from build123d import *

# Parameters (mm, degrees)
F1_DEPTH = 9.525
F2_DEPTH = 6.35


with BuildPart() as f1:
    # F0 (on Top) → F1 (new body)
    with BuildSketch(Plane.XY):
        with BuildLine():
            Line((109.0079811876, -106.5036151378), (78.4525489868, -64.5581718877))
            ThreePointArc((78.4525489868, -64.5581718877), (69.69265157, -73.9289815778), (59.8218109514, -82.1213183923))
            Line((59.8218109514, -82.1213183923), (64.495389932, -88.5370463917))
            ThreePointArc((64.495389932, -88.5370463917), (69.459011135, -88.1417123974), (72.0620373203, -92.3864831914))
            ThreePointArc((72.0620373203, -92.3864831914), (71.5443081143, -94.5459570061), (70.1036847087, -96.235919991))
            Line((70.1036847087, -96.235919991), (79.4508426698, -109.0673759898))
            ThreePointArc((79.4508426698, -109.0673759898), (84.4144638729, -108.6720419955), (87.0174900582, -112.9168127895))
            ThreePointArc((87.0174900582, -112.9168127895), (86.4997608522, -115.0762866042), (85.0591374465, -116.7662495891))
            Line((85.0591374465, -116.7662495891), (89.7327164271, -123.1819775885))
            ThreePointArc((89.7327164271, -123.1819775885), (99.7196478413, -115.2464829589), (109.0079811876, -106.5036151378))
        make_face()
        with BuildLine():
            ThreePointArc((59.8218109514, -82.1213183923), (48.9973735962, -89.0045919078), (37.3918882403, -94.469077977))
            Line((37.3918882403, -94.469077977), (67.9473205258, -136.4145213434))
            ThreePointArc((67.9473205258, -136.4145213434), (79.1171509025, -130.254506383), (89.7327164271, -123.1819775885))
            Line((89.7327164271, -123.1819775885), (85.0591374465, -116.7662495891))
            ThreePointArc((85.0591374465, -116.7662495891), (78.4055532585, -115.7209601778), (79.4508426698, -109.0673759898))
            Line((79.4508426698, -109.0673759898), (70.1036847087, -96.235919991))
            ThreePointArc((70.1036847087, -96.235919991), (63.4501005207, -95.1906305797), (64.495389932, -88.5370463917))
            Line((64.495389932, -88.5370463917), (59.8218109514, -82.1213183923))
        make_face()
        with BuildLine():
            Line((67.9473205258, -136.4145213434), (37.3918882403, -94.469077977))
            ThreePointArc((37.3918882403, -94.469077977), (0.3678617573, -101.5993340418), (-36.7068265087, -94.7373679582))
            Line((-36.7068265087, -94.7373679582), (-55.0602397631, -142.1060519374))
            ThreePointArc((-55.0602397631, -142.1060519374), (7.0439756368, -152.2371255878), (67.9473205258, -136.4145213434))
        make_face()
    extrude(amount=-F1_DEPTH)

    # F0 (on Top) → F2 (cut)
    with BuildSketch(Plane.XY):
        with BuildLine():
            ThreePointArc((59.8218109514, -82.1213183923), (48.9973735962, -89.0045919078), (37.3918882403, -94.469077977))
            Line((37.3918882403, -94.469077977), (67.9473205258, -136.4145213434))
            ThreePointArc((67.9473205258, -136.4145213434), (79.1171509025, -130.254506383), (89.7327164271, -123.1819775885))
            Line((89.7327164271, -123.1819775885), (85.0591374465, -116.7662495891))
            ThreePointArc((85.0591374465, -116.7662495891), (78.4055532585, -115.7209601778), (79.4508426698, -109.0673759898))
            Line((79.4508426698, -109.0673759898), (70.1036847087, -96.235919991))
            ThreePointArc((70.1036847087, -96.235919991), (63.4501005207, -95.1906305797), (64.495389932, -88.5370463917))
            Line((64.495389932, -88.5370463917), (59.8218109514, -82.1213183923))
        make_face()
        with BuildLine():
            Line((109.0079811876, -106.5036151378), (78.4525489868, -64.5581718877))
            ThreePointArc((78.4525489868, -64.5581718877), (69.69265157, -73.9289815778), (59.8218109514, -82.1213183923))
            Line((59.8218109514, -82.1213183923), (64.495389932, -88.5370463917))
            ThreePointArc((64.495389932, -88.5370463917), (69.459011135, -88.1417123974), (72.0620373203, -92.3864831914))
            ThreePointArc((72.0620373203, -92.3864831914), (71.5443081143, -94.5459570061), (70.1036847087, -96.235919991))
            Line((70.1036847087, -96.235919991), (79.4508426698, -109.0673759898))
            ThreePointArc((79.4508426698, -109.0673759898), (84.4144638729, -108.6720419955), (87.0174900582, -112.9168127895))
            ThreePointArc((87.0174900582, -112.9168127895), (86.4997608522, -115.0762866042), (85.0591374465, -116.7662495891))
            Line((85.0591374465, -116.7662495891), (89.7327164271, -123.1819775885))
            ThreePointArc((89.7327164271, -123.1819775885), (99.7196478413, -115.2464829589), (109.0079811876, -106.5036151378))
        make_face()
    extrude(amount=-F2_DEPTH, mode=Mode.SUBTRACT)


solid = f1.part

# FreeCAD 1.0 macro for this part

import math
import FreeCAD as App
import Part
import Sketcher
from FreeCAD import Vector
Q = App.Units.Quantity

doc = App.newDocument("Part")
body = doc.addObject("PartDesign::Body", "Body")

sketch1 = doc.addObject("Sketcher::SketchObject", "Sketch")
body.addObject(sketch1)
sketch1.AttachmentSupport = (doc.XY_Plane, [""])
sketch1.MapMode = "FlatFace"
sketch1.addGeometry([
    Part.LineSegment(Vector(109, -106.5, 0), Vector(78.5, -64.6, 0)),
    Part.ArcOfCircle(Part.Circle(Vector(0, 0, 0), Vector(0, 0, 1), 101.6), math.radians(-53.93), math.radians(-39.45)),
    Part.ArcOfCircle(Part.Circle(Vector(0, 0, 0), Vector(0, 0, 1), 101.6), math.radians(-68.41), math.radians(-53.93)),
    Part.ArcOfCircle(Part.Circle(Vector(0, 0, 0), Vector(0, 0, 1), 101.6), math.radians(-111), math.radians(-68)),
    Part.LineSegment(Vector(-36.7, -94.7, 0), Vector(-55.1, -142.1, 0)),
    Part.ArcOfCircle(Part.Circle(Vector(0, 0, 0), Vector(0, 0, 1), 152.4), math.radians(-111), math.radians(-64)),
    Part.ArcOfCircle(Part.Circle(Vector(0, 0, 0), Vector(0, 0, 1), 152.4), math.radians(-63.52), math.radians(-53.93)),
    Part.ArcOfCircle(Part.Circle(Vector(0, 0, 0), Vector(0, 0, 1), 152.4), math.radians(-53.93), math.radians(-44.33)),
    Part.ArcOfCircle(Part.Circle(Vector(67.3, -92.4, 0), Vector(0, 0, 1), 4.8), math.radians(0), math.radians(126)),
    Part.ArcOfCircle(Part.Circle(Vector(67.3, -92.4, 0), Vector(0, 0, 1), 4.8), math.radians(-54), math.radians(0)),
    Part.ArcOfCircle(Part.Circle(Vector(67.3, -92.4, 0), Vector(0, 0, 1), 4.8), math.radians(126), math.radians(306)),
    Part.ArcOfCircle(Part.Circle(Vector(82.3, -112.9, 0), Vector(0, 0, 1), 4.8), math.radians(-54), math.radians(126)),
    Part.ArcOfCircle(Part.Circle(Vector(82.3, -112.9, 0), Vector(0, 0, 1), 4.8), math.radians(126), math.radians(306)),
], False)
sketch1.addConstraint([
    Sketcher.Constraint("Coincident", 0, 2, 1, 2),
    Sketcher.Constraint("Tangent", 1, 1, 2, 2),
    Sketcher.Constraint("Tangent", 2, 1, 3, 2),
    Sketcher.Constraint("Coincident", 3, 1, 4, 1),
    Sketcher.Constraint("Coincident", 4, 2, 5, 1),
    Sketcher.Constraint("Tangent", 5, 2, 6, 1),
    Sketcher.Constraint("Tangent", 6, 2, 7, 1),
    Sketcher.Constraint("Coincident", 7, 2, 0, 1),
    Sketcher.Constraint("Tangent", 8, 1, 9, 2),
    Sketcher.Constraint("Tangent", 9, 1, 10, 2),
    Sketcher.Constraint("Tangent", 10, 1, 8, 2),
    Sketcher.Constraint("Tangent", 11, 1, 12, 2),
    Sketcher.Constraint("Coincident", 12, 1, 11, 2),
    Sketcher.Constraint("Coincident", 1, 3, -1, 1),
    Sketcher.Constraint("Coincident", 3, 3, -1, 1),
    Sketcher.Constraint("Coincident", 5, 3, -1, 1),
    Sketcher.Constraint("Coincident", 7, 3, -1, 1),
    Sketcher.Constraint("Equal", 10, 11),
    Sketcher.Constraint("Horizontal", 10, 3, 8, 1),
    Sketcher.Constraint("Radius", 1, Q("4 in")),
    Sketcher.Constraint("Radius", 5, Q("6 in")),
    Sketcher.Constraint("Radius", 8, Q("0.1875 in")),
    Sketcher.Constraint("DistanceX", 2, 1, 12, 3, Q("44.863102 mm")),
    Sketcher.Constraint("DistanceY", 9, 1, 1, 1, Q("14.114602 mm")),
    Sketcher.Constraint("DistanceY", 6, 2, 12, 1, Q("14.114602 mm")),
    Sketcher.Constraint("Distance", 0, Q("51.894649 mm")),
    Sketcher.Constraint("DistanceX", -1, 1, 11, 3, Q("82.25499 mm")),
    Sketcher.Constraint("DistanceX", -1, 1, 0, 2, Q("78.452549 mm")),
    Sketcher.Constraint("DistanceX", -1, 1, 1, 1, Q("59.821811 mm")),
    Sketcher.Constraint("DistanceX", 4, 2, -1, 1, Q("55.06024 mm")),
    Sketcher.Constraint("DistanceX", -1, 1, 5, 2, Q("67.947321 mm")),
    Sketcher.Constraint("DistanceX", -1, 1, 10, 1, Q("64.49539 mm")),
    Sketcher.Constraint("DistanceY", 11, 1, -1, 1, Q("116.76625 mm")),
    Sketcher.Constraint("DistanceY", 11, 3, 8, 3, Q("20.53033 mm")),
    Sketcher.Constraint("DistanceX", 8, 3, 0, 2, Q("11.153012 mm")),
    Sketcher.Constraint("DistanceY", 8, 3, 0, 2, Q("27.828311 mm")),
    Sketcher.Constraint("DistanceY", 3, 1, 2, 1, Q("0.26829 mm")),
    Sketcher.Constraint("DistanceX", 8, 3, 6, 2, Q("22.433179 mm")),
])
pad1 = doc.addObject("PartDesign::Pad", "Pad")
body.addObject(pad1)
pad1.Profile = sketch1
pad1.Length = Q("0.375 in")
pad1.Reversed = True

sketch2 = doc.addObject("Sketcher::SketchObject", "Sketch001")
body.addObject(sketch2)
sketch2.AttachmentSupport = (doc.XY_Plane, [""])
sketch2.MapMode = "FlatFace"
sketch2.addGeometry([
    Part.ArcOfCircle(Part.Circle(Vector(0, 0, 0), Vector(0, 0, 1), 101.6), math.radians(-68.41), math.radians(-53.93)),
    Part.LineSegment(Vector(37.4, -94.5, 0), Vector(67.9, -136.4, 0)),
    Part.ArcOfCircle(Part.Circle(Vector(0, 0, 0), Vector(0, 0, 1), 152.4), math.radians(-63.52), math.radians(-53.93)),
    Part.ArcOfCircle(Part.Circle(Vector(0, 0, 0), Vector(0, 0, 1), 152.4), math.radians(-53.93), math.radians(-44.33)),
    Part.LineSegment(Vector(109, -106.5, 0), Vector(78.5, -64.6, 0)),
    Part.ArcOfCircle(Part.Circle(Vector(0, 0, 0), Vector(0, 0, 1), 101.6), math.radians(-53.93), math.radians(-39.45)),
    Part.ArcOfCircle(Part.Circle(Vector(82.3, -112.9, 0), Vector(0, 0, 1), 4.8), math.radians(126), math.radians(306)),
    Part.ArcOfCircle(Part.Circle(Vector(82.3, -112.9, 0), Vector(0, 0, 1), 4.8), math.radians(-54), math.radians(126)),
    Part.ArcOfCircle(Part.Circle(Vector(67.3, -92.4, 0), Vector(0, 0, 1), 4.8), math.radians(126), math.radians(306)),
    Part.ArcOfCircle(Part.Circle(Vector(67.3, -92.4, 0), Vector(0, 0, 1), 4.8), math.radians(0), math.radians(126)),
    Part.ArcOfCircle(Part.Circle(Vector(67.3, -92.4, 0), Vector(0, 0, 1), 4.8), math.radians(-54), math.radians(0)),
], False)
sketch2.addConstraint([
    Sketcher.Constraint("Coincident", 0, 1, 1, 1),
    Sketcher.Constraint("Coincident", 1, 2, 2, 1),
    Sketcher.Constraint("Tangent", 2, 2, 3, 1),
    Sketcher.Constraint("Coincident", 3, 2, 4, 1),
    Sketcher.Constraint("Coincident", 4, 2, 5, 2),
    Sketcher.Constraint("Tangent", 5, 1, 0, 2),
    Sketcher.Constraint("Tangent", 6, 1, 7, 2),
    Sketcher.Constraint("Coincident", 7, 1, 6, 2),
    Sketcher.Constraint("Tangent", 8, 1, 9, 2),
    Sketcher.Constraint("Tangent", 9, 1, 10, 2),
    Sketcher.Constraint("Tangent", 10, 1, 8, 2),
    Sketcher.Constraint("Coincident", 0, 3, -1, 1),
    Sketcher.Constraint("Coincident", 2, 3, -1, 1),
    Sketcher.Constraint("Equal", 2, 3),
    Sketcher.Constraint("Equal", 0, 5),
    Sketcher.Constraint("Equal", 7, 8),
    Sketcher.Constraint("Parallel", 1, 4),
    Sketcher.Constraint("Horizontal", 10, 3, 9, 1),
    Sketcher.Constraint("Equal", 1, 4),
    Sketcher.Constraint("Radius", 0, Q("4 in")),
    Sketcher.Constraint("Radius", 2, Q("6 in")),
    Sketcher.Constraint("Radius", 6, Q("0.1875 in")),
    Sketcher.Constraint("DistanceX", 0, 1, 6, 3, Q("44.863102 mm")),
    Sketcher.Constraint("DistanceY", 2, 2, 6, 1, Q("14.114602 mm")),
    Sketcher.Constraint("Distance", 1, Q("51.89465 mm")),
    Sketcher.Constraint("DistanceX", -1, 1, 6, 3, Q("82.25499 mm")),
    Sketcher.Constraint("DistanceX", -1, 1, 5, 1, Q("59.821811 mm")),
    Sketcher.Constraint("DistanceY", 7, 1, -1, 1, Q("116.76625 mm")),
    Sketcher.Constraint("DistanceX", -1, 1, 8, 1, Q("64.49539 mm")),
    Sketcher.Constraint("DistanceY", 10, 1, -1, 1, Q("96.23592 mm")),
    Sketcher.Constraint("DistanceY", 6, 3, 8, 3, Q("20.53033 mm")),
    Sketcher.Constraint("DistanceX", 0, 1, 8, 3, Q("29.907649 mm")),
    Sketcher.Constraint("DistanceY", 1, 2, 7, 3, Q("23.497709 mm")),
    Sketcher.Constraint("DistanceX", 8, 3, 2, 2, Q("22.433179 mm")),
])
pocket1 = doc.addObject("PartDesign::Pocket", "Pocket")
body.addObject(pocket1)
pocket1.Profile = sketch2
pocket1.Length = Q("0.25 in")

doc.recompute()
